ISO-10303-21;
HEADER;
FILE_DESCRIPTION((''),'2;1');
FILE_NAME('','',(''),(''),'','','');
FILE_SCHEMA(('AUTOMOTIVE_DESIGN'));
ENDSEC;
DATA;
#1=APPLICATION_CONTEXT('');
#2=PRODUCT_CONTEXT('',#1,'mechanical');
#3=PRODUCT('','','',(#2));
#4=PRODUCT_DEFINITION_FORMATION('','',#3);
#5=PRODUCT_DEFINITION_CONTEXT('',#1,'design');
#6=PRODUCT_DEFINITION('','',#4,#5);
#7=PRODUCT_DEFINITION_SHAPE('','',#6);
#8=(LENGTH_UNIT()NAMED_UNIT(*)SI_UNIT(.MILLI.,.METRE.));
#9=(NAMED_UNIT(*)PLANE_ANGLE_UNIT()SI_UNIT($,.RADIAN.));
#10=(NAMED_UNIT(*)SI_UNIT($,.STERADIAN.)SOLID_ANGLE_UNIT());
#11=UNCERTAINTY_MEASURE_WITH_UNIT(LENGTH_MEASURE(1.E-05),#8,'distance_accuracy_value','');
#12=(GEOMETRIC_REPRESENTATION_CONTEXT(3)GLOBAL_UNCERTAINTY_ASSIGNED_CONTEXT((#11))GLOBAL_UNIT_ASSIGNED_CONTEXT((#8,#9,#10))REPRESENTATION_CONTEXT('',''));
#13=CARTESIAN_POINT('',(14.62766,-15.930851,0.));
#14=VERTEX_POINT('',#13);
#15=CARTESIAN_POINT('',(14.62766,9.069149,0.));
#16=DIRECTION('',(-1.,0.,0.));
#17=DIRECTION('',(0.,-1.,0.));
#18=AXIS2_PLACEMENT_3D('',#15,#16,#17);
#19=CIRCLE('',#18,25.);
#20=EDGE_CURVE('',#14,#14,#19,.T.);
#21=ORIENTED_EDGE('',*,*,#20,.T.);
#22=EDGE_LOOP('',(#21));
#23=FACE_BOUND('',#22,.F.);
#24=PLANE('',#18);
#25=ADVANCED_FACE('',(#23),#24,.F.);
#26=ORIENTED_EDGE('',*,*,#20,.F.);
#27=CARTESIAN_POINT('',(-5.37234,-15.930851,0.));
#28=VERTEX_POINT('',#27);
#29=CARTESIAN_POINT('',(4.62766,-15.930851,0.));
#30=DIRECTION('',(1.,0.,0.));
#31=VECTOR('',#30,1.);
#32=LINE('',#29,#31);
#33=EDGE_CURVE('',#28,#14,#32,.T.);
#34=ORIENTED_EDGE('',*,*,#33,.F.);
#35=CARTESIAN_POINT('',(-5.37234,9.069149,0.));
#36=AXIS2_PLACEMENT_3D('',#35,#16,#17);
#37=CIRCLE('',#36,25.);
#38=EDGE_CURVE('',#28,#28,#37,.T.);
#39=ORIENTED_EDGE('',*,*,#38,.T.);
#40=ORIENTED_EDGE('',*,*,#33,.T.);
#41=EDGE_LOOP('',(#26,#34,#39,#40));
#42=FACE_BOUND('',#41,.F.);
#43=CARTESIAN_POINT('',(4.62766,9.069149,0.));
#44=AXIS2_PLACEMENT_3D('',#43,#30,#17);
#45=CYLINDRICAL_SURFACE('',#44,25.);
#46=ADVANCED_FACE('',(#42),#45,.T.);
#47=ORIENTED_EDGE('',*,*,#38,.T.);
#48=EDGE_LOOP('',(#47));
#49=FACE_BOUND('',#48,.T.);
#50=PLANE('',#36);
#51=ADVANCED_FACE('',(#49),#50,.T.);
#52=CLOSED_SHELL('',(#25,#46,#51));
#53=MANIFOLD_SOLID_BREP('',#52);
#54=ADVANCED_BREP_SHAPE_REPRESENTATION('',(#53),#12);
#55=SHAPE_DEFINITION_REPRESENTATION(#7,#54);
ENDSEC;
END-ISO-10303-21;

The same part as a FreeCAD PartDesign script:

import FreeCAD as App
import Part
import Sketcher
from FreeCAD import Vector
Q = App.Units.Quantity


def add_polygon(sketch, points):
    """Adds a closed chain of lines whose ends are joined by coincident constraints."""
    first, n = sketch.GeometryCount, len(points)
    for a, b in zip(points, points[1:] + points[:1]):
        sketch.addGeometry(Part.LineSegment(App.Vector(*a, 0), App.Vector(*b, 0)), False)
    for i in range(n):
        sketch.addConstraint(Sketcher.Constraint("Coincident", first + i, 2, first + (i + 1) % n, 1))

doc = App.newDocument("Part")
params = doc.addObject("Spreadsheet::Sheet", "Params")
for row, (alias, value) in enumerate([
    ("sketch1_width", "20 mm"),
    ("sketch1_height", "25 mm"),
    ("revolution_angle", "360 deg"),
], start=1):
    params.set(f"A{row}", alias)
    params.set(f"B{row}", "=" + value)
    params.setAlias(f"B{row}", alias)

body = doc.addObject("PartDesign::Body", "Body")

# Sketch on XY plane
sketch1 = body.newObject("Sketcher::SketchObject", "Sketch")
sketch1.AttachmentSupport = (doc.getObject("XY_Plane"), [""])
sketch1.MapMode = "FlatFace"
add_polygon(sketch1, [(-5, 9), (-5, -16), (15, -16), (15, 9)])  # lines 0-3
sketch1.addGeometry(Part.LineSegment(Vector(15, 9, 0), Vector(-5, 9, 0)), True)  # axis
sketch1.addConstraint(Sketcher.Constraint("Vertical", 0))
sketch1.addConstraint(Sketcher.Constraint("Horizontal", 1))
sketch1.addConstraint(Sketcher.Constraint("Vertical", 2))
sketch1.addConstraint(Sketcher.Constraint("Horizontal", 3))
sketch1.addConstraint(Sketcher.Constraint("Horizontal", 4))
sketch1.addConstraint(Sketcher.Constraint("Coincident", 4, 1, 2, 2))
sketch1.addConstraint(Sketcher.Constraint("Vertical", 0, 2, 4, 2))
sketch1.addConstraint(Sketcher.Constraint("DistanceX", 1, 1, 1, 2, Q("20 mm")))
sketch1.addConstraint(Sketcher.Constraint("DistanceY", 0, 2, 0, 1, Q("25 mm")))
sketch1.addConstraint(Sketcher.Constraint("DistanceX", 0, 2, -1, 1, Q("5.37234 mm")))
sketch1.addConstraint(Sketcher.Constraint("DistanceY", 0, 2, -1, 1, Q("15.930851 mm")))
sketch1.setExpression("Constraints[11]", "Params.sketch1_width")
sketch1.setExpression("Constraints[12]", "Params.sketch1_height")
revolution = body.newObject("PartDesign::Revolution", "Revolution")
revolution.Profile = sketch1
revolution.ReferenceAxis = (sketch1, ["Axis0"])
revolution.setExpression("Angle", "Params.revolution_angle")

doc.recompute()
